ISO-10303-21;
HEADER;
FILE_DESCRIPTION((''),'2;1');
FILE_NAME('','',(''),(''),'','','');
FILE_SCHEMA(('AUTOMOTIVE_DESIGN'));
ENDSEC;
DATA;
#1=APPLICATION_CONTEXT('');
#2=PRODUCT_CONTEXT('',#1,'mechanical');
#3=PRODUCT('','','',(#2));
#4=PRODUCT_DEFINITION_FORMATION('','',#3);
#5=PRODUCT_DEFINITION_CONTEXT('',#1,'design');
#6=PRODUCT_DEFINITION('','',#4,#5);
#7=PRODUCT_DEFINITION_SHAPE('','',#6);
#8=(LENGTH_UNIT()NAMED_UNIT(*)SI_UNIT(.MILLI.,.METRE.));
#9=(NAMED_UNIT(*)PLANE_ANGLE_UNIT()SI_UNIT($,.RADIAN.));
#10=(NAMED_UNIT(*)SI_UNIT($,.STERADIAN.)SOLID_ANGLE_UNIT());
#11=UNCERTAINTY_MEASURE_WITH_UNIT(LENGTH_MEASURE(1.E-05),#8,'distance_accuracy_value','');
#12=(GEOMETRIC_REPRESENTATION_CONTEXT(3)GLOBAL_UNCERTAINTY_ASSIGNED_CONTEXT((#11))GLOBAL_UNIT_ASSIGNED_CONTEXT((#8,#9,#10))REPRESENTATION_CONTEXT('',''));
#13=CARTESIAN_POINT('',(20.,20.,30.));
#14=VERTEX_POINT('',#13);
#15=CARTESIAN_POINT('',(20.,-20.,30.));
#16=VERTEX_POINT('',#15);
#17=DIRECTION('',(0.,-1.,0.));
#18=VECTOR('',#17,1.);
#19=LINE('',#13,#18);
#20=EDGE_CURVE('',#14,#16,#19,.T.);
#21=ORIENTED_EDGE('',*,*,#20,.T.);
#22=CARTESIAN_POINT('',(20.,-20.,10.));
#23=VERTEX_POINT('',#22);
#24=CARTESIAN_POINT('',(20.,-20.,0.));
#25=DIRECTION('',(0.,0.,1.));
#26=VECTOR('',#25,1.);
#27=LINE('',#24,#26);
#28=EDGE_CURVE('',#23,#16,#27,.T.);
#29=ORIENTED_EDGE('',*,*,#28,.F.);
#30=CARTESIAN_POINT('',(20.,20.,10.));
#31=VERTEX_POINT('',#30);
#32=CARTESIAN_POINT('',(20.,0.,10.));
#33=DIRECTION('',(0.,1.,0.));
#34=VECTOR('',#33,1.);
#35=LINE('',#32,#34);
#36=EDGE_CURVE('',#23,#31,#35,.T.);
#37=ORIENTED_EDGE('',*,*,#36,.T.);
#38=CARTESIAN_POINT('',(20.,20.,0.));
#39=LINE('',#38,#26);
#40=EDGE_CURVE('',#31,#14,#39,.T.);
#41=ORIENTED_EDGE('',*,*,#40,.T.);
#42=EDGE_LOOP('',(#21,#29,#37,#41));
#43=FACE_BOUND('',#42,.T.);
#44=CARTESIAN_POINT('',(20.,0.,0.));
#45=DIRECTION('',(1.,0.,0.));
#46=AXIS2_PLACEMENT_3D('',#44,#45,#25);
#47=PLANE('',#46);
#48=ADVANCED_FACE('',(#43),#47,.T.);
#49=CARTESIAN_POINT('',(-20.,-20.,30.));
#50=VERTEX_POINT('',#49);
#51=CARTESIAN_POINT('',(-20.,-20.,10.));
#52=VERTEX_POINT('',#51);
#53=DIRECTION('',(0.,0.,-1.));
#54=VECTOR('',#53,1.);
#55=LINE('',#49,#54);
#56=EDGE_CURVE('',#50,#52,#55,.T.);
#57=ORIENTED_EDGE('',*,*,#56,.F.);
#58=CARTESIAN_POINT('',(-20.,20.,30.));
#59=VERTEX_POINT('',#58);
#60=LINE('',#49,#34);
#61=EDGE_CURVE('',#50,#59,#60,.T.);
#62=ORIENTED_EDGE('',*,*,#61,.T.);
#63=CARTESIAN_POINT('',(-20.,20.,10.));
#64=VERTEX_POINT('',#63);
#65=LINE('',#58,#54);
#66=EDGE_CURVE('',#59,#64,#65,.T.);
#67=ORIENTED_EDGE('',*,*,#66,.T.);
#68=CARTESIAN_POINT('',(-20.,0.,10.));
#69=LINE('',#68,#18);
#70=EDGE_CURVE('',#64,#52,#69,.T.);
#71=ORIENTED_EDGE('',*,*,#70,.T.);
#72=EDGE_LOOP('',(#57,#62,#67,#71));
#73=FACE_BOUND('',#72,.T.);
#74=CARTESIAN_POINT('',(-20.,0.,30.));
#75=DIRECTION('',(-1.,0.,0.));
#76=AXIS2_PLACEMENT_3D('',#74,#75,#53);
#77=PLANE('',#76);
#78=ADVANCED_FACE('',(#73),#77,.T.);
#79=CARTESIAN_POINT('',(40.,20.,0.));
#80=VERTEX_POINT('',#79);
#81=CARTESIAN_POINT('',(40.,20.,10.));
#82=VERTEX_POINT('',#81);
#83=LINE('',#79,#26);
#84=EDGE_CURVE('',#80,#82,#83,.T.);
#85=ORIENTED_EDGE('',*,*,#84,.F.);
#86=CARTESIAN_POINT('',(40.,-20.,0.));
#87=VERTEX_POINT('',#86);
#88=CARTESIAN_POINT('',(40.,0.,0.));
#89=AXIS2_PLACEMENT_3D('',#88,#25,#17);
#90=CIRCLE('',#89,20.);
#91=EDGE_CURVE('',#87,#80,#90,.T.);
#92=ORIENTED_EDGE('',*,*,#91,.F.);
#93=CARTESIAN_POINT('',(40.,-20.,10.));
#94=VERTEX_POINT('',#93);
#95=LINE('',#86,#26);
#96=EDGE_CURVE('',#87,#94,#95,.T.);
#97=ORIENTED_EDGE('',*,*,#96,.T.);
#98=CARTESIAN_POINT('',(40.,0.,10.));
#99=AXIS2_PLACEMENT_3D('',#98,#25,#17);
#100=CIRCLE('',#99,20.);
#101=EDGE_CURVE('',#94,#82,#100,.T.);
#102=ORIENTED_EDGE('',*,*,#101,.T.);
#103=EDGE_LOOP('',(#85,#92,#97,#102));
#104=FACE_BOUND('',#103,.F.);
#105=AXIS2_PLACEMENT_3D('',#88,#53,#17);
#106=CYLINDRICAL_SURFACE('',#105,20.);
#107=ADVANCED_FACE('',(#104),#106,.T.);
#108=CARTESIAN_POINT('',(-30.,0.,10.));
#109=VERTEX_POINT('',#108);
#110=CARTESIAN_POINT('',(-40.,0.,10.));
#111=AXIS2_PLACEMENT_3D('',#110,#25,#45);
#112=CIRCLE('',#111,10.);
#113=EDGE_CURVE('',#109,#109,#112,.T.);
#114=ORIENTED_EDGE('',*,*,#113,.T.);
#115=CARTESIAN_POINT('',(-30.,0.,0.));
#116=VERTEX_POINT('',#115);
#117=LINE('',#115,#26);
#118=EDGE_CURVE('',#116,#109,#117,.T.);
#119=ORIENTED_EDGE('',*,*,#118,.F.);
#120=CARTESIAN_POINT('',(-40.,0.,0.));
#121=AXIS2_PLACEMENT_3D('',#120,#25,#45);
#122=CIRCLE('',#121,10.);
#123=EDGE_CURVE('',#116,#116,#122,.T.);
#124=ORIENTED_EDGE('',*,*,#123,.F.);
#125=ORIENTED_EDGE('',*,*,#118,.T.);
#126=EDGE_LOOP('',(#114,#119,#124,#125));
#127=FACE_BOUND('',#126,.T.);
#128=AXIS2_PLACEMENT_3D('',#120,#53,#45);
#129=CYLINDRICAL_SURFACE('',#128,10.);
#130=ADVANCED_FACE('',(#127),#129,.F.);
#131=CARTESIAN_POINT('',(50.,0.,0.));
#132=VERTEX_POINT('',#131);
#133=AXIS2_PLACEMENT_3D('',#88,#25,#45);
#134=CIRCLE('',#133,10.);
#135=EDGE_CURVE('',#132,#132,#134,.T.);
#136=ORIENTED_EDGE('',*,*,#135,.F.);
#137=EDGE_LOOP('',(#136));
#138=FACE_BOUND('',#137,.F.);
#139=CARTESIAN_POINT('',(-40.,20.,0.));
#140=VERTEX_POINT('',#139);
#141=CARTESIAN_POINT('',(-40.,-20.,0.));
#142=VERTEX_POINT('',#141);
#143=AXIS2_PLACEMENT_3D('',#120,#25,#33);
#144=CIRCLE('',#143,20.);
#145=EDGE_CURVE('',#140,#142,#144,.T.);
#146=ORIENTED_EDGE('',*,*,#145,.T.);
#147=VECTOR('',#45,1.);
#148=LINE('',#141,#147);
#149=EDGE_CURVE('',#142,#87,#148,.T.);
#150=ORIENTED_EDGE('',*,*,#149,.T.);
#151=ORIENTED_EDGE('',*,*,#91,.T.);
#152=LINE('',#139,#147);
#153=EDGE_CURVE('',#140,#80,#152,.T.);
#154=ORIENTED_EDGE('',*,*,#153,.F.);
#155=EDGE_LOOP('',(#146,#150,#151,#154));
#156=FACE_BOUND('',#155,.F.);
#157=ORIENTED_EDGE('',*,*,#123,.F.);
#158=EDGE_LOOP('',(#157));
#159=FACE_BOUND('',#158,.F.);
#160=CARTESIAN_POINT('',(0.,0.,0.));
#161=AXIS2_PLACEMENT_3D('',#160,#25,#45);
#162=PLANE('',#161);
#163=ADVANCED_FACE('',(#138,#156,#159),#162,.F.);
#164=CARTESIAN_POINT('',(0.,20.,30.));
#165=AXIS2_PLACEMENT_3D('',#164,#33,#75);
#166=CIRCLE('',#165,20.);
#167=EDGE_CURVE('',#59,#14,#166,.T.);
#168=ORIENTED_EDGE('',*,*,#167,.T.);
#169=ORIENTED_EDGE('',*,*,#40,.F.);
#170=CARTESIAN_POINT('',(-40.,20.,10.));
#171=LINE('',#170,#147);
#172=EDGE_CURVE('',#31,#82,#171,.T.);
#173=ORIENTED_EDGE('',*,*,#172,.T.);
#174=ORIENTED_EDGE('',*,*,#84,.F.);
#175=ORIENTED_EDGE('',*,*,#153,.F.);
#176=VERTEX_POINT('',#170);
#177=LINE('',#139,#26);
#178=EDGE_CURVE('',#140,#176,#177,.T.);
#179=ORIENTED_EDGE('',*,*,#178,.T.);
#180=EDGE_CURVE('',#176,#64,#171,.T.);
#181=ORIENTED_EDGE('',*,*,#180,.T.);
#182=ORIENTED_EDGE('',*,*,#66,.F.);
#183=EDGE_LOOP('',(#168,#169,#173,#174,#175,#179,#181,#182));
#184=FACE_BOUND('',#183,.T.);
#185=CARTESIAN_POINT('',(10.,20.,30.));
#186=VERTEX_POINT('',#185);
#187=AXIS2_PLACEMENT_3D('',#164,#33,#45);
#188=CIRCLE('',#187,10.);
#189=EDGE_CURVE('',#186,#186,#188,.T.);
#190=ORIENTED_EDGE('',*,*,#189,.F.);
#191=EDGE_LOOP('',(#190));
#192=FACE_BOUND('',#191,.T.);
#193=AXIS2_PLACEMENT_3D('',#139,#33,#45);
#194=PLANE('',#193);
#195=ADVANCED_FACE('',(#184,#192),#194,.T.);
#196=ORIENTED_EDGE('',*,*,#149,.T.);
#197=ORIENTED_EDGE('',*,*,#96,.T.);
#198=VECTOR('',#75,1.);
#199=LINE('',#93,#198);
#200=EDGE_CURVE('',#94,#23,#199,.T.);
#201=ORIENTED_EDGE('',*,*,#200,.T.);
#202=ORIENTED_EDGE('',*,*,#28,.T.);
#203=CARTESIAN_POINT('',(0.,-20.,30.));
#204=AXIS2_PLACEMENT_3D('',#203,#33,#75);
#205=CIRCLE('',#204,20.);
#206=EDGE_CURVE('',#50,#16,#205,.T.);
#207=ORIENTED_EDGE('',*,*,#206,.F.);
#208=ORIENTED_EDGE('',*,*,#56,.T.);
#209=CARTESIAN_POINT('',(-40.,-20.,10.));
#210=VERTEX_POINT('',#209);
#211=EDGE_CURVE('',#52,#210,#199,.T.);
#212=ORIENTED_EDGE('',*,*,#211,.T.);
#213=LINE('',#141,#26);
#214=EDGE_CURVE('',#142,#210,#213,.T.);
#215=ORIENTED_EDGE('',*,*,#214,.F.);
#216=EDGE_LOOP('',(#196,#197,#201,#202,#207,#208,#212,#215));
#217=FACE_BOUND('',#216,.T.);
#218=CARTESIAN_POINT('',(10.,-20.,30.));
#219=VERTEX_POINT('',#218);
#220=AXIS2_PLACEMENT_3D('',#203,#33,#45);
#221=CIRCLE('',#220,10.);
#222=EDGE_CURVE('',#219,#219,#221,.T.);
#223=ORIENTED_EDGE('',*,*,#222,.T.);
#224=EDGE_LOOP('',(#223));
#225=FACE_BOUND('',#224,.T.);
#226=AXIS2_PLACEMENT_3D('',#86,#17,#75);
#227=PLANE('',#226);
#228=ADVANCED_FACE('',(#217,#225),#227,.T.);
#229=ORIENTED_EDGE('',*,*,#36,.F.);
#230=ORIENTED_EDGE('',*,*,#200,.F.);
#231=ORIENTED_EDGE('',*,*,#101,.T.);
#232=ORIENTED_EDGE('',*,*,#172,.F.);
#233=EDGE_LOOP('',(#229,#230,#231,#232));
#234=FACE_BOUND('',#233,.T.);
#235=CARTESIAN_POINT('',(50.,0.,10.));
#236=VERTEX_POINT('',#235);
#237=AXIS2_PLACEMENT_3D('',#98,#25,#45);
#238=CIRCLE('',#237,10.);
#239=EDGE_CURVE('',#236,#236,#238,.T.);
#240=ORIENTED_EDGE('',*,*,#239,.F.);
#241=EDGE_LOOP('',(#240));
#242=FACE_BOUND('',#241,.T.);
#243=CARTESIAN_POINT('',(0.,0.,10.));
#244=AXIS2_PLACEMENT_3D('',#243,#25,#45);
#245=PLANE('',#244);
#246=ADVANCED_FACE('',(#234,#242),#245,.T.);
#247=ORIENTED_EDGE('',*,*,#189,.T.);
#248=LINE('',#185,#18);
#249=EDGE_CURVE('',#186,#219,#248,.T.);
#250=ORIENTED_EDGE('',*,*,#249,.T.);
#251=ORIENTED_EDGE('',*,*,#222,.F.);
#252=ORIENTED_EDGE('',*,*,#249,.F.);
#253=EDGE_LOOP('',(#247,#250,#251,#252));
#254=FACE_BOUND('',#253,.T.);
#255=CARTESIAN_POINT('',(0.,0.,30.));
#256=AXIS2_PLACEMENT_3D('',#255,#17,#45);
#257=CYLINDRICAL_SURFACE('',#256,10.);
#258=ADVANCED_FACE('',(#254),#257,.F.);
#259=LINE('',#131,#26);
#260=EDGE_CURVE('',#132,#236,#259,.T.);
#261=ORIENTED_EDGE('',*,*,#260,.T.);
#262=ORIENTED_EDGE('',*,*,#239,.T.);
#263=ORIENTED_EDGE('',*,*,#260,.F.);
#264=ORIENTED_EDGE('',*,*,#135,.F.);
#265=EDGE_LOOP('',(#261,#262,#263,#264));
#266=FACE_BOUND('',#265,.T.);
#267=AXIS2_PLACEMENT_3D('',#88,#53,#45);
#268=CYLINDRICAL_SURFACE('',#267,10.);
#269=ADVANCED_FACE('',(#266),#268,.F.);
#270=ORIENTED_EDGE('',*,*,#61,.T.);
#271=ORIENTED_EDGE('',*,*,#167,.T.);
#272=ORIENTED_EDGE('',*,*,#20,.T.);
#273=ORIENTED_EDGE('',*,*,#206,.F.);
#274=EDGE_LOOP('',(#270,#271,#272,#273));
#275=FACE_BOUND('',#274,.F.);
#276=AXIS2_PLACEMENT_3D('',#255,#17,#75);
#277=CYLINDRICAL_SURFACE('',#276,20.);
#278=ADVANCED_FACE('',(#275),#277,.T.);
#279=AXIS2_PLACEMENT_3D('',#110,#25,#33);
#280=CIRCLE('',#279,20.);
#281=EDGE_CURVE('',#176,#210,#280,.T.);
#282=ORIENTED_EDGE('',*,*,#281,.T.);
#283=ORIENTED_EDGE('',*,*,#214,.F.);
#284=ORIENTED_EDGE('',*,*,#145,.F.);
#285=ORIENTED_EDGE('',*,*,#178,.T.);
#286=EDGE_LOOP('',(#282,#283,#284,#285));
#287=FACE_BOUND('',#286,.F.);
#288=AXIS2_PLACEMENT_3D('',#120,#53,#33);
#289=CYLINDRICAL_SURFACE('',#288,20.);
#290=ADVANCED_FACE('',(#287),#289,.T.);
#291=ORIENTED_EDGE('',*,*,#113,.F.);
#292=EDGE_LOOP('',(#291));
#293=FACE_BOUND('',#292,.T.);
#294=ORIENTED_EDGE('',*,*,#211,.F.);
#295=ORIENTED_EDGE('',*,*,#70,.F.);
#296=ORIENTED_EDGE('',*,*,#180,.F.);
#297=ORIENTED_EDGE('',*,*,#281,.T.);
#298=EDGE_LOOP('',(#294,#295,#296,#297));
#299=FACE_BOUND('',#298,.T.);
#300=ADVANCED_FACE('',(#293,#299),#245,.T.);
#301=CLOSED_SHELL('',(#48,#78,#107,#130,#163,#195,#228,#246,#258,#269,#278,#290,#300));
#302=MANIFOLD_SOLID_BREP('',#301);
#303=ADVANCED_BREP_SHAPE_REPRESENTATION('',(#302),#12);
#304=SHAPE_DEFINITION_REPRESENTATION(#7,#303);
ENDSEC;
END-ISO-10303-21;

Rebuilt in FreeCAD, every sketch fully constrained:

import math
import FreeCAD as App
import Part
import Sketcher
Q = App.Units.Quantity

doc = App.newDocument("Part")
body = doc.addObject("PartDesign::Body", "Body")

# Sketch on XY plane
sketch1 = doc.addObject("Sketcher::SketchObject", "Sketch")
body.addObject(sketch1)
sketch1.AttachmentSupport = (doc.XY_Plane, [""])
sketch1.MapMode = "FlatFace"
sketch1.addGeometry([
    Part.LineSegment(App.Vector(-40, -20, 0), App.Vector(40, -20, 0)),  # 0
    Part.ArcOfCircle(Part.Circle(App.Vector(40, 0, 0), App.Vector(0, 0, 1), 20), math.radians(-90), math.radians(90)),  # 1
    Part.LineSegment(App.Vector(40, 20, 0), App.Vector(-40, 20, 0)),  # 2
    Part.ArcOfCircle(Part.Circle(App.Vector(-40, 0, 0), App.Vector(0, 0, 1), 20), math.radians(90), math.radians(270)),  # 3
    Part.Circle(App.Vector(-40, 0, 0), App.Vector(0, 0, 1), 10),  # 4
    Part.Circle(App.Vector(40, 0, 0), App.Vector(0, 0, 1), 10),  # 5
], False)
sketch1.addConstraint([
    Sketcher.Constraint("Tangent", 0, 2, 1, 1),
    Sketcher.Constraint("Tangent", 1, 2, 2, 1),
    Sketcher.Constraint("Tangent", 2, 2, 3, 1),
    Sketcher.Constraint("Tangent", 3, 2, 0, 1),
    Sketcher.Constraint("Horizontal", 0),
    Sketcher.Constraint("Horizontal", 2),
    Sketcher.Constraint("Coincident", 4, 3, 3, 3),
    Sketcher.Constraint("Coincident", 5, 3, 1, 3),
    Sketcher.Constraint("Equal", 4, 5),
    Sketcher.Constraint("Symmetric", 1, 3, 3, 3, -1, 1),
    Sketcher.Constraint("Radius", 1, Q("20 mm")),
    Sketcher.Constraint("DistanceX", 0, 1, 0, 2, Q("80 mm")),
    Sketcher.Constraint("Diameter", 4, Q("20 mm")),
])
pad1 = doc.addObject("PartDesign::Pad", "Pad")
body.addObject(pad1)
pad1.Profile = sketch1
pad1.Length = 10

# Sketch on XZ plane
sketch2 = doc.addObject("Sketcher::SketchObject", "Sketch001")
body.addObject(sketch2)
sketch2.AttachmentSupport = (doc.XZ_Plane, [""])
sketch2.MapMode = "FlatFace"
sketch2.addGeometry([
    Part.LineSegment(App.Vector(20, 0, 0), App.Vector(-20, 0, 0)),  # 0
    Part.LineSegment(App.Vector(-20, 0, 0), App.Vector(-20, 30, 0)),  # 1
    Part.ArcOfCircle(Part.Circle(App.Vector(0, 30, 0), App.Vector(0, 0, 1), 20), math.radians(0), math.radians(180)),  # 2
    Part.LineSegment(App.Vector(20, 30, 0), App.Vector(20, 0, 0)),  # 3
    Part.Circle(App.Vector(0, 30, 0), App.Vector(0, 0, 1), 10),  # 4
], False)
sketch2.addConstraint([
    Sketcher.Constraint("Coincident", 0, 2, 1, 1),
    Sketcher.Constraint("Tangent", 1, 2, 2, 2),
    Sketcher.Constraint("Tangent", 2, 1, 3, 1),
    Sketcher.Constraint("Coincident", 3, 2, 0, 1),
    Sketcher.Constraint("Horizontal", 0),
    Sketcher.Constraint("Vertical", 1),
    Sketcher.Constraint("Vertical", 3),
    Sketcher.Constraint("Coincident", 4, 3, 2, 3),
    Sketcher.Constraint("Symmetric", 0, 2, 3, 2, -1, 1),
    Sketcher.Constraint("Diameter", 4, Q("20 mm")),
    Sketcher.Constraint("Radius", 2, Q("20 mm")),
    Sketcher.Constraint("DistanceY", 1, 1, 1, 2, Q("30 mm")),
])
pad2 = doc.addObject("PartDesign::Pad", "Pad001")
body.addObject(pad2)
pad2.Profile = sketch2
pad2.Length = 40
pad2.Midplane = True

doc.recompute()
